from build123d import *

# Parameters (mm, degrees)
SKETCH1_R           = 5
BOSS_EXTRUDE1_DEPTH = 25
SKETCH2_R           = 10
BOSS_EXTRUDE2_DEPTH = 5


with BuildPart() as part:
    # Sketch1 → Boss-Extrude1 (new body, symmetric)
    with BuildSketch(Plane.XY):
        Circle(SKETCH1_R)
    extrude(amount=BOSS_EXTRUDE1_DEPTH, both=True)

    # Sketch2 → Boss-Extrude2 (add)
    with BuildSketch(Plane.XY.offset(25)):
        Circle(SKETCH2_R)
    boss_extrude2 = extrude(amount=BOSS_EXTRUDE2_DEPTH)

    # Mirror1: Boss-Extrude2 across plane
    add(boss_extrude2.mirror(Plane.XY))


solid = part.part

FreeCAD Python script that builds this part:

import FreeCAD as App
import Part
import Sketcher
Q = App.Units.Quantity

doc = App.newDocument("Part")
body = doc.addObject("PartDesign::Body", "Body")

# Sketch on XY plane
sketch1 = body.newObject("Sketcher::SketchObject", "Sketch")
sketch1.AttachmentSupport = (doc.getObject("XY_Plane"), [""])
sketch1.MapMode = "FlatFace"
sketch1.addGeometry(Part.Circle(App.Vector(0, 0, 0), App.Vector(0, 0, 1), 5), False)
sketch1.addConstraint([
    Sketcher.Constraint("Coincident", 0, 3, -1, 1),
    Sketcher.Constraint("Diameter", 0, Q("10 mm")),
])
pad1 = body.newObject("PartDesign::Pad", "Pad")
pad1.Profile = sketch1
pad1.Length = 50
pad1.Midplane = True

# Sketch on XY plane
sketch2 = body.newObject("Sketcher::SketchObject", "Sketch001")
sketch2.AttachmentSupport = (doc.getObject("XY_Plane"), [""])
sketch2.MapMode = "FlatFace"
sketch2.AttachmentOffset = App.Placement(App.Vector(0, 0, 25), App.Rotation())
sketch2.addGeometry(Part.Circle(App.Vector(0, 0, 0), App.Vector(0, 0, 1), 10), False)
sketch2.addConstraint([
    Sketcher.Constraint("Coincident", 0, 3, -1, 1),
    Sketcher.Constraint("Diameter", 0, Q("20 mm")),
])
pad2 = body.newObject("PartDesign::Pad", "Pad001")
pad2.Profile = sketch2
pad2.Length = 5
doc.recompute()

mirrored = body.newObject("PartDesign::Mirrored", "Mirrored")
mirrored.Originals = [pad2]
mirrored.MirrorPlane = (doc.getObject("XY_Plane"), [""])
body.Tip = mirrored

doc.recompute()
